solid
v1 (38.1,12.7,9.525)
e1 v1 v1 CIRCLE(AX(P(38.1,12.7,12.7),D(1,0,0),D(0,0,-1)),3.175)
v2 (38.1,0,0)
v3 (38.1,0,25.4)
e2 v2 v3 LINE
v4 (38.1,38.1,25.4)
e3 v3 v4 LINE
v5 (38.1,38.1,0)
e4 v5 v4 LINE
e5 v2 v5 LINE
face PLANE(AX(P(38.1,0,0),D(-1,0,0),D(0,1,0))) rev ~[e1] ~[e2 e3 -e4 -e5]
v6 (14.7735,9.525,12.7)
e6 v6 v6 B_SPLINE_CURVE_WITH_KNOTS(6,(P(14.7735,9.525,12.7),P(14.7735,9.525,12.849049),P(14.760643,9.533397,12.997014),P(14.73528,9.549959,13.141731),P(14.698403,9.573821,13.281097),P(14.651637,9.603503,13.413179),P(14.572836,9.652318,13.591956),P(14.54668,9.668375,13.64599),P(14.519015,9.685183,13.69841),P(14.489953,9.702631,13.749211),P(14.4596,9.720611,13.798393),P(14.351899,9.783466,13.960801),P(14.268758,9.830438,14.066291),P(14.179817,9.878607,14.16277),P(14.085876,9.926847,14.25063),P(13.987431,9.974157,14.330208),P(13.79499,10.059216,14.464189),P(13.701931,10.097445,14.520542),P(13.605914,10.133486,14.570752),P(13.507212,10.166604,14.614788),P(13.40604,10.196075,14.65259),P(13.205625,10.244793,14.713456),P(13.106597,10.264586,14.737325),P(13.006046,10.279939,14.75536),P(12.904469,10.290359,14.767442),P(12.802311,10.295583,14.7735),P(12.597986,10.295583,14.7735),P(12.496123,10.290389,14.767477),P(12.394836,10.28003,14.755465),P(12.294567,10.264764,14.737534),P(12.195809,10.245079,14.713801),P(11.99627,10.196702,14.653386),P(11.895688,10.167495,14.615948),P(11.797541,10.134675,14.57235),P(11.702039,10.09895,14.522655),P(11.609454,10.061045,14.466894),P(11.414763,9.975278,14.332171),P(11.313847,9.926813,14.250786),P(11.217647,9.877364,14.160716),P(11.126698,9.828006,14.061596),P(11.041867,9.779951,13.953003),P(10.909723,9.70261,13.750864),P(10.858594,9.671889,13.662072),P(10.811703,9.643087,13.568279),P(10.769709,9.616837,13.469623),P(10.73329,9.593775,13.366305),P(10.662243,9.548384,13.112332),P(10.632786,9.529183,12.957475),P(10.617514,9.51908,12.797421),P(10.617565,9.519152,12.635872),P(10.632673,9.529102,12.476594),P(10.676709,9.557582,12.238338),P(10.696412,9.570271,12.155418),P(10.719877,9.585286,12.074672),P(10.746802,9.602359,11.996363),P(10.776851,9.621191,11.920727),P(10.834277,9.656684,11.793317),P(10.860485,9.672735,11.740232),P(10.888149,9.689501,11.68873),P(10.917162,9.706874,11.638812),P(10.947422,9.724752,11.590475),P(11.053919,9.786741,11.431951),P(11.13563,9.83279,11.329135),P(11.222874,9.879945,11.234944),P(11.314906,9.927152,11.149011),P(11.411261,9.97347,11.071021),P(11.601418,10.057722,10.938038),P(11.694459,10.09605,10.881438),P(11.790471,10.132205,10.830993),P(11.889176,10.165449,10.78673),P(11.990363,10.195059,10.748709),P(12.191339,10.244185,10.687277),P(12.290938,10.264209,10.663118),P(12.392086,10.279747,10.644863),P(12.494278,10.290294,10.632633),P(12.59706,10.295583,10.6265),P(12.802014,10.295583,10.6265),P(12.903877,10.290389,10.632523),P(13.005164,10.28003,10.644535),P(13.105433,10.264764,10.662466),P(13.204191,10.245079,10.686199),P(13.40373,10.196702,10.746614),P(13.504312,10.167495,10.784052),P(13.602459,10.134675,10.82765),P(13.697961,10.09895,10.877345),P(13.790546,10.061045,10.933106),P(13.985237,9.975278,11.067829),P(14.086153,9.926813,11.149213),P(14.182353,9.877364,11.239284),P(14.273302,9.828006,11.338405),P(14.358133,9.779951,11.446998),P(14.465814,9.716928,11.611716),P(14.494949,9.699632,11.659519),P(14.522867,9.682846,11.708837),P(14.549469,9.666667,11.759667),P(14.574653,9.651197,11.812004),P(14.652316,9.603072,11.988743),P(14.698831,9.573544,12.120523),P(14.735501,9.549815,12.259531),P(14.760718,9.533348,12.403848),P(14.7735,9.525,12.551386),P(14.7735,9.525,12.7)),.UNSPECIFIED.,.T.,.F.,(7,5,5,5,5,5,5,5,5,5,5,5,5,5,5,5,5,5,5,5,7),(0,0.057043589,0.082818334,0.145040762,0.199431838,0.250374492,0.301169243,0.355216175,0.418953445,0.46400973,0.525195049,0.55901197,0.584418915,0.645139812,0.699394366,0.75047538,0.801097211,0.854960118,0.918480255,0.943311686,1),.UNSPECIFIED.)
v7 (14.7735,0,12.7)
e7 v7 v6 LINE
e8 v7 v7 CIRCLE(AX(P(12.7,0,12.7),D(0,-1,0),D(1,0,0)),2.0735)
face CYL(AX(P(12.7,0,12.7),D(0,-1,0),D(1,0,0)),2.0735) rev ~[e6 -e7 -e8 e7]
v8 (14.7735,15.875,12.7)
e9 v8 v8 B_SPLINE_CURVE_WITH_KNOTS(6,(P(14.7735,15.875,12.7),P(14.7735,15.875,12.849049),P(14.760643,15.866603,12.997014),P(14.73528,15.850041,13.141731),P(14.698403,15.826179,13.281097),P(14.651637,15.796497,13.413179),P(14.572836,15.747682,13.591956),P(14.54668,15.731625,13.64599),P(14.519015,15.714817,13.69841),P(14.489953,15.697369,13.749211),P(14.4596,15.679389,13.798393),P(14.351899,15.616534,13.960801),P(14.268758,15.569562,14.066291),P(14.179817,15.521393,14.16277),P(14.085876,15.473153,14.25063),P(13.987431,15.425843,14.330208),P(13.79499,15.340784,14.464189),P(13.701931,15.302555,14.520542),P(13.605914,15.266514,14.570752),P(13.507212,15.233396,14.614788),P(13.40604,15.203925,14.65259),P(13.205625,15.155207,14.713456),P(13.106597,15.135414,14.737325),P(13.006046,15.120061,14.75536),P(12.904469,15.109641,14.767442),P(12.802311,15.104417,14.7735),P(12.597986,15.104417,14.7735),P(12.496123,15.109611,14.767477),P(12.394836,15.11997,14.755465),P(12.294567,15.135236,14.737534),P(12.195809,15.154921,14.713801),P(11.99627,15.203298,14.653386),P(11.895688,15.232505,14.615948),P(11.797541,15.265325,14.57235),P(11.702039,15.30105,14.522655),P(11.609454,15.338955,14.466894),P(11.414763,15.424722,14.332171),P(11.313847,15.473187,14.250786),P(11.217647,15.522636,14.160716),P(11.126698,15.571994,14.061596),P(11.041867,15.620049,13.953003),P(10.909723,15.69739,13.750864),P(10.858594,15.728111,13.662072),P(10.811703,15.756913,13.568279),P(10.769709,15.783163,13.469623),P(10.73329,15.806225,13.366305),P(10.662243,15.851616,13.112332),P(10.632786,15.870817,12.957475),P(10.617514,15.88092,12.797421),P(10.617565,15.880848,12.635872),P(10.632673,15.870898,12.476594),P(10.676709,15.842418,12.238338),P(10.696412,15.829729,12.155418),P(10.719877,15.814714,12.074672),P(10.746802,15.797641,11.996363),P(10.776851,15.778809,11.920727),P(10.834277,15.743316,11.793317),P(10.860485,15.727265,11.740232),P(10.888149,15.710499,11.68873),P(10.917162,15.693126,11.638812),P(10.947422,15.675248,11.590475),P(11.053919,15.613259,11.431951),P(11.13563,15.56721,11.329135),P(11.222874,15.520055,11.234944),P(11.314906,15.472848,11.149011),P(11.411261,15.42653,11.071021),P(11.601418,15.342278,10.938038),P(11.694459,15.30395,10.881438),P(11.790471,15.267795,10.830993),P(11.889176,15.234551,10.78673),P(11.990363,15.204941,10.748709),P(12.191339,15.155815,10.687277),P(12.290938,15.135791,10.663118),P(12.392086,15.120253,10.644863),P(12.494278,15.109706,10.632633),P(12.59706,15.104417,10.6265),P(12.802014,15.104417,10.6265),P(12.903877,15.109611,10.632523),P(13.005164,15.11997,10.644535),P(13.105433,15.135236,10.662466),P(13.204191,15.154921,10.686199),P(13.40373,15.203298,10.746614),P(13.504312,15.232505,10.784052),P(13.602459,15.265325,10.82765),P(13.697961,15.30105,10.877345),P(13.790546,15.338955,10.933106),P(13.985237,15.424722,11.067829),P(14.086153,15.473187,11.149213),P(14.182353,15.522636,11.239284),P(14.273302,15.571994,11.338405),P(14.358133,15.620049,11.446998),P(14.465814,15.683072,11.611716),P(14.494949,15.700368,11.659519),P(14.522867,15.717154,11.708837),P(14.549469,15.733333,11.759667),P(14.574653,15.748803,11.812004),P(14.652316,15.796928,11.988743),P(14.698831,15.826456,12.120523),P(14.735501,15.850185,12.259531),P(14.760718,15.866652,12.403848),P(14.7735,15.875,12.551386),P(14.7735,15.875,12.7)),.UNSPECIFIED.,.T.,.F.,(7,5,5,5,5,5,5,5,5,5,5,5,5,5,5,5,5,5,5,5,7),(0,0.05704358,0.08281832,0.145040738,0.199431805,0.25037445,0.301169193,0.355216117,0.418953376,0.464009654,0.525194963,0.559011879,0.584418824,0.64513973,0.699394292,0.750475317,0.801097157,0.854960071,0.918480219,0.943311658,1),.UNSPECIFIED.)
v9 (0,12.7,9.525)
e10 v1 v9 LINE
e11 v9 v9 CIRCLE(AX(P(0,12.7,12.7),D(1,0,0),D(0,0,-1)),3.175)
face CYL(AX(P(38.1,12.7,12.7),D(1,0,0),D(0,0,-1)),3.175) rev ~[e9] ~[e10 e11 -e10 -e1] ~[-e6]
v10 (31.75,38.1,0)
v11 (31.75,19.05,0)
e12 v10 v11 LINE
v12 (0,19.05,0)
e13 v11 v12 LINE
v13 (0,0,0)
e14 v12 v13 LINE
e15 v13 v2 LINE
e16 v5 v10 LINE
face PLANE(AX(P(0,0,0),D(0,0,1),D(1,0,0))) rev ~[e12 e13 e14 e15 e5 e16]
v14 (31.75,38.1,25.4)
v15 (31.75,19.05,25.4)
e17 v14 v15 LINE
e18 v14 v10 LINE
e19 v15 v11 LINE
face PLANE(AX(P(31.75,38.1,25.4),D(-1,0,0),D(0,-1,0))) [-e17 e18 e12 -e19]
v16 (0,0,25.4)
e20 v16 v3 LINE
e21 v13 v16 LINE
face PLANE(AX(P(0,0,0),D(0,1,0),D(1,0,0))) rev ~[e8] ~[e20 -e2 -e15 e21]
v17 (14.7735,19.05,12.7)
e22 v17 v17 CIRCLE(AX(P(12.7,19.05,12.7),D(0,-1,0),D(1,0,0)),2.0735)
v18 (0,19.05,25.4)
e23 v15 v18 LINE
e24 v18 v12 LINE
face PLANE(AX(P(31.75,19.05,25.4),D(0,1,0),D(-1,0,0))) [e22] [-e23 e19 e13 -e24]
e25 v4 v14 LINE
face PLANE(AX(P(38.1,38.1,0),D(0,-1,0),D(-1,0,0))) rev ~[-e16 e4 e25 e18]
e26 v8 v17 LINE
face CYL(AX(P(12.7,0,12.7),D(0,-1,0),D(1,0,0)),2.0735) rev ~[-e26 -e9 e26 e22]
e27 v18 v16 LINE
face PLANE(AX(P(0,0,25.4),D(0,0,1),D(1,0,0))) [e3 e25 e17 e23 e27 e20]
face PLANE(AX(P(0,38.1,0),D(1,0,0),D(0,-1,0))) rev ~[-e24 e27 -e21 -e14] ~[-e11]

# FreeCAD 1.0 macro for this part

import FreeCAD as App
import Part
import Sketcher

V = App.Vector
Q = App.Units.Quantity


def add_polygon(sketch, points):
    """Adds a closed chain of lines whose ends are joined by coincident constraints."""
    first, n = sketch.GeometryCount, len(points)
    for a, b in zip(points, points[1:] + points[:1]):
        sketch.addGeometry(Part.LineSegment(App.Vector(*a, 0), App.Vector(*b, 0)), False)
    for i in range(n):
        sketch.addConstraint(Sketcher.Constraint("Coincident", first + i, 2, first + (i + 1) % n, 1))

doc = App.newDocument("Part")
body = doc.addObject("PartDesign::Body", "Body")

# Sketch on XY plane
sketch1 = body.newObject("Sketcher::SketchObject", "Sketch")
sketch1.AttachmentSupport = (doc.getObject("XY_Plane"), [""])
sketch1.MapMode = "FlatFace"
add_polygon(sketch1, [(0, 38.1), (0, 0), (38.1, 0), (38.1, 38.1)])  # lines 0-3
sketch1.addConstraint([
    Sketcher.Constraint("Vertical", 0),
    Sketcher.Constraint("Horizontal", 1),
    Sketcher.Constraint("Vertical", 2),
    Sketcher.Constraint("Horizontal", 3),
    Sketcher.Constraint("Coincident", 0, 2, -1, 1),
    Sketcher.Constraint("Equal", 3, 0),
    Sketcher.Constraint("DistanceX", 1, 1, 1, 2, Q("1.5 in")),
])
pad1 = body.newObject("PartDesign::Pad", "Pad")
pad1.Profile = sketch1
pad1.Length = Q("1 in")

# Sketch on YZ plane
sketch2 = body.newObject("Sketcher::SketchObject", "Sketch001")
sketch2.AttachmentSupport = (doc.getObject("YZ_Plane"), [""])
sketch2.MapMode = "FlatFace"
sketch2.AttachmentOffset = App.Placement(V(0, 0, 1.5 * 25.4), App.Rotation())
sketch2.addGeometry(Part.Circle(V(12.7, 12.7, 0), V(0, 0, 1), 3.175), False)
sketch2.addConstraint([
    Sketcher.Constraint("Diameter", 0, Q("0.25 in")),
    Sketcher.Constraint("DistanceX", -1, 1, 0, 3, Q("0.5 in")),
    Sketcher.Constraint("DistanceY", -1, 1, 0, 3, Q("0.5 in")),
])
pocket1 = body.newObject("PartDesign::Pocket", "Pocket")
pocket1.Profile = sketch2
pocket1.Type = "ThroughAll"

# Sketch on XY plane
sketch3 = body.newObject("Sketcher::SketchObject", "Sketch002")
sketch3.AttachmentSupport = (doc.getObject("XY_Plane"), [""])
sketch3.MapMode = "FlatFace"
sketch3.AttachmentOffset = App.Placement(V(0, 0, 1 * 25.4), App.Rotation())
add_polygon(sketch3, [(31.75, 38.1), (0, 38.1), (0, 19.05), (31.75, 19.05)])  # lines 0-3
sketch3.addConstraint([
    Sketcher.Constraint("Horizontal", 0),
    Sketcher.Constraint("Vertical", 1),
    Sketcher.Constraint("Horizontal", 2),
    Sketcher.Constraint("Vertical", 3),
    Sketcher.Constraint("PointOnObject", 0, 2, -2),
    Sketcher.Constraint("DistanceY", 1, 2, 1, 1, Q("0.75 in")),
    Sketcher.Constraint("DistanceY", -1, 1, 1, 2, Q("0.75 in")),
    Sketcher.Constraint("DistanceX", 0, 2, 0, 1, Q("1.25 in")),
])
pocket2 = body.newObject("PartDesign::Pocket", "Pocket001")
pocket2.Profile = sketch3
pocket2.Type = "ThroughAll"

# Sketch on XZ plane
sketch4 = body.newObject("Sketcher::SketchObject", "Sketch003")
sketch4.AttachmentSupport = (doc.getObject("XZ_Plane"), [""])
sketch4.MapMode = "FlatFace"
sketch4.addGeometry(Part.Circle(V(12.7, 12.7, 0), V(0, 0, 1), 2.0735), False)
sketch4.addConstraint([
    Sketcher.Constraint("DistanceX", -1, 1, 0, 3, Q("0.5 in")),
    Sketcher.Constraint("DistanceY", -1, 1, 0, 3, Q("0.5 in")),
    Sketcher.Constraint("Diameter", 0, Q("4.147 mm")),
])
pocket3 = body.newObject("PartDesign::Pocket", "Pocket002")
pocket3.Profile = sketch4
pocket3.Type = "ThroughAll"

doc.recompute()
